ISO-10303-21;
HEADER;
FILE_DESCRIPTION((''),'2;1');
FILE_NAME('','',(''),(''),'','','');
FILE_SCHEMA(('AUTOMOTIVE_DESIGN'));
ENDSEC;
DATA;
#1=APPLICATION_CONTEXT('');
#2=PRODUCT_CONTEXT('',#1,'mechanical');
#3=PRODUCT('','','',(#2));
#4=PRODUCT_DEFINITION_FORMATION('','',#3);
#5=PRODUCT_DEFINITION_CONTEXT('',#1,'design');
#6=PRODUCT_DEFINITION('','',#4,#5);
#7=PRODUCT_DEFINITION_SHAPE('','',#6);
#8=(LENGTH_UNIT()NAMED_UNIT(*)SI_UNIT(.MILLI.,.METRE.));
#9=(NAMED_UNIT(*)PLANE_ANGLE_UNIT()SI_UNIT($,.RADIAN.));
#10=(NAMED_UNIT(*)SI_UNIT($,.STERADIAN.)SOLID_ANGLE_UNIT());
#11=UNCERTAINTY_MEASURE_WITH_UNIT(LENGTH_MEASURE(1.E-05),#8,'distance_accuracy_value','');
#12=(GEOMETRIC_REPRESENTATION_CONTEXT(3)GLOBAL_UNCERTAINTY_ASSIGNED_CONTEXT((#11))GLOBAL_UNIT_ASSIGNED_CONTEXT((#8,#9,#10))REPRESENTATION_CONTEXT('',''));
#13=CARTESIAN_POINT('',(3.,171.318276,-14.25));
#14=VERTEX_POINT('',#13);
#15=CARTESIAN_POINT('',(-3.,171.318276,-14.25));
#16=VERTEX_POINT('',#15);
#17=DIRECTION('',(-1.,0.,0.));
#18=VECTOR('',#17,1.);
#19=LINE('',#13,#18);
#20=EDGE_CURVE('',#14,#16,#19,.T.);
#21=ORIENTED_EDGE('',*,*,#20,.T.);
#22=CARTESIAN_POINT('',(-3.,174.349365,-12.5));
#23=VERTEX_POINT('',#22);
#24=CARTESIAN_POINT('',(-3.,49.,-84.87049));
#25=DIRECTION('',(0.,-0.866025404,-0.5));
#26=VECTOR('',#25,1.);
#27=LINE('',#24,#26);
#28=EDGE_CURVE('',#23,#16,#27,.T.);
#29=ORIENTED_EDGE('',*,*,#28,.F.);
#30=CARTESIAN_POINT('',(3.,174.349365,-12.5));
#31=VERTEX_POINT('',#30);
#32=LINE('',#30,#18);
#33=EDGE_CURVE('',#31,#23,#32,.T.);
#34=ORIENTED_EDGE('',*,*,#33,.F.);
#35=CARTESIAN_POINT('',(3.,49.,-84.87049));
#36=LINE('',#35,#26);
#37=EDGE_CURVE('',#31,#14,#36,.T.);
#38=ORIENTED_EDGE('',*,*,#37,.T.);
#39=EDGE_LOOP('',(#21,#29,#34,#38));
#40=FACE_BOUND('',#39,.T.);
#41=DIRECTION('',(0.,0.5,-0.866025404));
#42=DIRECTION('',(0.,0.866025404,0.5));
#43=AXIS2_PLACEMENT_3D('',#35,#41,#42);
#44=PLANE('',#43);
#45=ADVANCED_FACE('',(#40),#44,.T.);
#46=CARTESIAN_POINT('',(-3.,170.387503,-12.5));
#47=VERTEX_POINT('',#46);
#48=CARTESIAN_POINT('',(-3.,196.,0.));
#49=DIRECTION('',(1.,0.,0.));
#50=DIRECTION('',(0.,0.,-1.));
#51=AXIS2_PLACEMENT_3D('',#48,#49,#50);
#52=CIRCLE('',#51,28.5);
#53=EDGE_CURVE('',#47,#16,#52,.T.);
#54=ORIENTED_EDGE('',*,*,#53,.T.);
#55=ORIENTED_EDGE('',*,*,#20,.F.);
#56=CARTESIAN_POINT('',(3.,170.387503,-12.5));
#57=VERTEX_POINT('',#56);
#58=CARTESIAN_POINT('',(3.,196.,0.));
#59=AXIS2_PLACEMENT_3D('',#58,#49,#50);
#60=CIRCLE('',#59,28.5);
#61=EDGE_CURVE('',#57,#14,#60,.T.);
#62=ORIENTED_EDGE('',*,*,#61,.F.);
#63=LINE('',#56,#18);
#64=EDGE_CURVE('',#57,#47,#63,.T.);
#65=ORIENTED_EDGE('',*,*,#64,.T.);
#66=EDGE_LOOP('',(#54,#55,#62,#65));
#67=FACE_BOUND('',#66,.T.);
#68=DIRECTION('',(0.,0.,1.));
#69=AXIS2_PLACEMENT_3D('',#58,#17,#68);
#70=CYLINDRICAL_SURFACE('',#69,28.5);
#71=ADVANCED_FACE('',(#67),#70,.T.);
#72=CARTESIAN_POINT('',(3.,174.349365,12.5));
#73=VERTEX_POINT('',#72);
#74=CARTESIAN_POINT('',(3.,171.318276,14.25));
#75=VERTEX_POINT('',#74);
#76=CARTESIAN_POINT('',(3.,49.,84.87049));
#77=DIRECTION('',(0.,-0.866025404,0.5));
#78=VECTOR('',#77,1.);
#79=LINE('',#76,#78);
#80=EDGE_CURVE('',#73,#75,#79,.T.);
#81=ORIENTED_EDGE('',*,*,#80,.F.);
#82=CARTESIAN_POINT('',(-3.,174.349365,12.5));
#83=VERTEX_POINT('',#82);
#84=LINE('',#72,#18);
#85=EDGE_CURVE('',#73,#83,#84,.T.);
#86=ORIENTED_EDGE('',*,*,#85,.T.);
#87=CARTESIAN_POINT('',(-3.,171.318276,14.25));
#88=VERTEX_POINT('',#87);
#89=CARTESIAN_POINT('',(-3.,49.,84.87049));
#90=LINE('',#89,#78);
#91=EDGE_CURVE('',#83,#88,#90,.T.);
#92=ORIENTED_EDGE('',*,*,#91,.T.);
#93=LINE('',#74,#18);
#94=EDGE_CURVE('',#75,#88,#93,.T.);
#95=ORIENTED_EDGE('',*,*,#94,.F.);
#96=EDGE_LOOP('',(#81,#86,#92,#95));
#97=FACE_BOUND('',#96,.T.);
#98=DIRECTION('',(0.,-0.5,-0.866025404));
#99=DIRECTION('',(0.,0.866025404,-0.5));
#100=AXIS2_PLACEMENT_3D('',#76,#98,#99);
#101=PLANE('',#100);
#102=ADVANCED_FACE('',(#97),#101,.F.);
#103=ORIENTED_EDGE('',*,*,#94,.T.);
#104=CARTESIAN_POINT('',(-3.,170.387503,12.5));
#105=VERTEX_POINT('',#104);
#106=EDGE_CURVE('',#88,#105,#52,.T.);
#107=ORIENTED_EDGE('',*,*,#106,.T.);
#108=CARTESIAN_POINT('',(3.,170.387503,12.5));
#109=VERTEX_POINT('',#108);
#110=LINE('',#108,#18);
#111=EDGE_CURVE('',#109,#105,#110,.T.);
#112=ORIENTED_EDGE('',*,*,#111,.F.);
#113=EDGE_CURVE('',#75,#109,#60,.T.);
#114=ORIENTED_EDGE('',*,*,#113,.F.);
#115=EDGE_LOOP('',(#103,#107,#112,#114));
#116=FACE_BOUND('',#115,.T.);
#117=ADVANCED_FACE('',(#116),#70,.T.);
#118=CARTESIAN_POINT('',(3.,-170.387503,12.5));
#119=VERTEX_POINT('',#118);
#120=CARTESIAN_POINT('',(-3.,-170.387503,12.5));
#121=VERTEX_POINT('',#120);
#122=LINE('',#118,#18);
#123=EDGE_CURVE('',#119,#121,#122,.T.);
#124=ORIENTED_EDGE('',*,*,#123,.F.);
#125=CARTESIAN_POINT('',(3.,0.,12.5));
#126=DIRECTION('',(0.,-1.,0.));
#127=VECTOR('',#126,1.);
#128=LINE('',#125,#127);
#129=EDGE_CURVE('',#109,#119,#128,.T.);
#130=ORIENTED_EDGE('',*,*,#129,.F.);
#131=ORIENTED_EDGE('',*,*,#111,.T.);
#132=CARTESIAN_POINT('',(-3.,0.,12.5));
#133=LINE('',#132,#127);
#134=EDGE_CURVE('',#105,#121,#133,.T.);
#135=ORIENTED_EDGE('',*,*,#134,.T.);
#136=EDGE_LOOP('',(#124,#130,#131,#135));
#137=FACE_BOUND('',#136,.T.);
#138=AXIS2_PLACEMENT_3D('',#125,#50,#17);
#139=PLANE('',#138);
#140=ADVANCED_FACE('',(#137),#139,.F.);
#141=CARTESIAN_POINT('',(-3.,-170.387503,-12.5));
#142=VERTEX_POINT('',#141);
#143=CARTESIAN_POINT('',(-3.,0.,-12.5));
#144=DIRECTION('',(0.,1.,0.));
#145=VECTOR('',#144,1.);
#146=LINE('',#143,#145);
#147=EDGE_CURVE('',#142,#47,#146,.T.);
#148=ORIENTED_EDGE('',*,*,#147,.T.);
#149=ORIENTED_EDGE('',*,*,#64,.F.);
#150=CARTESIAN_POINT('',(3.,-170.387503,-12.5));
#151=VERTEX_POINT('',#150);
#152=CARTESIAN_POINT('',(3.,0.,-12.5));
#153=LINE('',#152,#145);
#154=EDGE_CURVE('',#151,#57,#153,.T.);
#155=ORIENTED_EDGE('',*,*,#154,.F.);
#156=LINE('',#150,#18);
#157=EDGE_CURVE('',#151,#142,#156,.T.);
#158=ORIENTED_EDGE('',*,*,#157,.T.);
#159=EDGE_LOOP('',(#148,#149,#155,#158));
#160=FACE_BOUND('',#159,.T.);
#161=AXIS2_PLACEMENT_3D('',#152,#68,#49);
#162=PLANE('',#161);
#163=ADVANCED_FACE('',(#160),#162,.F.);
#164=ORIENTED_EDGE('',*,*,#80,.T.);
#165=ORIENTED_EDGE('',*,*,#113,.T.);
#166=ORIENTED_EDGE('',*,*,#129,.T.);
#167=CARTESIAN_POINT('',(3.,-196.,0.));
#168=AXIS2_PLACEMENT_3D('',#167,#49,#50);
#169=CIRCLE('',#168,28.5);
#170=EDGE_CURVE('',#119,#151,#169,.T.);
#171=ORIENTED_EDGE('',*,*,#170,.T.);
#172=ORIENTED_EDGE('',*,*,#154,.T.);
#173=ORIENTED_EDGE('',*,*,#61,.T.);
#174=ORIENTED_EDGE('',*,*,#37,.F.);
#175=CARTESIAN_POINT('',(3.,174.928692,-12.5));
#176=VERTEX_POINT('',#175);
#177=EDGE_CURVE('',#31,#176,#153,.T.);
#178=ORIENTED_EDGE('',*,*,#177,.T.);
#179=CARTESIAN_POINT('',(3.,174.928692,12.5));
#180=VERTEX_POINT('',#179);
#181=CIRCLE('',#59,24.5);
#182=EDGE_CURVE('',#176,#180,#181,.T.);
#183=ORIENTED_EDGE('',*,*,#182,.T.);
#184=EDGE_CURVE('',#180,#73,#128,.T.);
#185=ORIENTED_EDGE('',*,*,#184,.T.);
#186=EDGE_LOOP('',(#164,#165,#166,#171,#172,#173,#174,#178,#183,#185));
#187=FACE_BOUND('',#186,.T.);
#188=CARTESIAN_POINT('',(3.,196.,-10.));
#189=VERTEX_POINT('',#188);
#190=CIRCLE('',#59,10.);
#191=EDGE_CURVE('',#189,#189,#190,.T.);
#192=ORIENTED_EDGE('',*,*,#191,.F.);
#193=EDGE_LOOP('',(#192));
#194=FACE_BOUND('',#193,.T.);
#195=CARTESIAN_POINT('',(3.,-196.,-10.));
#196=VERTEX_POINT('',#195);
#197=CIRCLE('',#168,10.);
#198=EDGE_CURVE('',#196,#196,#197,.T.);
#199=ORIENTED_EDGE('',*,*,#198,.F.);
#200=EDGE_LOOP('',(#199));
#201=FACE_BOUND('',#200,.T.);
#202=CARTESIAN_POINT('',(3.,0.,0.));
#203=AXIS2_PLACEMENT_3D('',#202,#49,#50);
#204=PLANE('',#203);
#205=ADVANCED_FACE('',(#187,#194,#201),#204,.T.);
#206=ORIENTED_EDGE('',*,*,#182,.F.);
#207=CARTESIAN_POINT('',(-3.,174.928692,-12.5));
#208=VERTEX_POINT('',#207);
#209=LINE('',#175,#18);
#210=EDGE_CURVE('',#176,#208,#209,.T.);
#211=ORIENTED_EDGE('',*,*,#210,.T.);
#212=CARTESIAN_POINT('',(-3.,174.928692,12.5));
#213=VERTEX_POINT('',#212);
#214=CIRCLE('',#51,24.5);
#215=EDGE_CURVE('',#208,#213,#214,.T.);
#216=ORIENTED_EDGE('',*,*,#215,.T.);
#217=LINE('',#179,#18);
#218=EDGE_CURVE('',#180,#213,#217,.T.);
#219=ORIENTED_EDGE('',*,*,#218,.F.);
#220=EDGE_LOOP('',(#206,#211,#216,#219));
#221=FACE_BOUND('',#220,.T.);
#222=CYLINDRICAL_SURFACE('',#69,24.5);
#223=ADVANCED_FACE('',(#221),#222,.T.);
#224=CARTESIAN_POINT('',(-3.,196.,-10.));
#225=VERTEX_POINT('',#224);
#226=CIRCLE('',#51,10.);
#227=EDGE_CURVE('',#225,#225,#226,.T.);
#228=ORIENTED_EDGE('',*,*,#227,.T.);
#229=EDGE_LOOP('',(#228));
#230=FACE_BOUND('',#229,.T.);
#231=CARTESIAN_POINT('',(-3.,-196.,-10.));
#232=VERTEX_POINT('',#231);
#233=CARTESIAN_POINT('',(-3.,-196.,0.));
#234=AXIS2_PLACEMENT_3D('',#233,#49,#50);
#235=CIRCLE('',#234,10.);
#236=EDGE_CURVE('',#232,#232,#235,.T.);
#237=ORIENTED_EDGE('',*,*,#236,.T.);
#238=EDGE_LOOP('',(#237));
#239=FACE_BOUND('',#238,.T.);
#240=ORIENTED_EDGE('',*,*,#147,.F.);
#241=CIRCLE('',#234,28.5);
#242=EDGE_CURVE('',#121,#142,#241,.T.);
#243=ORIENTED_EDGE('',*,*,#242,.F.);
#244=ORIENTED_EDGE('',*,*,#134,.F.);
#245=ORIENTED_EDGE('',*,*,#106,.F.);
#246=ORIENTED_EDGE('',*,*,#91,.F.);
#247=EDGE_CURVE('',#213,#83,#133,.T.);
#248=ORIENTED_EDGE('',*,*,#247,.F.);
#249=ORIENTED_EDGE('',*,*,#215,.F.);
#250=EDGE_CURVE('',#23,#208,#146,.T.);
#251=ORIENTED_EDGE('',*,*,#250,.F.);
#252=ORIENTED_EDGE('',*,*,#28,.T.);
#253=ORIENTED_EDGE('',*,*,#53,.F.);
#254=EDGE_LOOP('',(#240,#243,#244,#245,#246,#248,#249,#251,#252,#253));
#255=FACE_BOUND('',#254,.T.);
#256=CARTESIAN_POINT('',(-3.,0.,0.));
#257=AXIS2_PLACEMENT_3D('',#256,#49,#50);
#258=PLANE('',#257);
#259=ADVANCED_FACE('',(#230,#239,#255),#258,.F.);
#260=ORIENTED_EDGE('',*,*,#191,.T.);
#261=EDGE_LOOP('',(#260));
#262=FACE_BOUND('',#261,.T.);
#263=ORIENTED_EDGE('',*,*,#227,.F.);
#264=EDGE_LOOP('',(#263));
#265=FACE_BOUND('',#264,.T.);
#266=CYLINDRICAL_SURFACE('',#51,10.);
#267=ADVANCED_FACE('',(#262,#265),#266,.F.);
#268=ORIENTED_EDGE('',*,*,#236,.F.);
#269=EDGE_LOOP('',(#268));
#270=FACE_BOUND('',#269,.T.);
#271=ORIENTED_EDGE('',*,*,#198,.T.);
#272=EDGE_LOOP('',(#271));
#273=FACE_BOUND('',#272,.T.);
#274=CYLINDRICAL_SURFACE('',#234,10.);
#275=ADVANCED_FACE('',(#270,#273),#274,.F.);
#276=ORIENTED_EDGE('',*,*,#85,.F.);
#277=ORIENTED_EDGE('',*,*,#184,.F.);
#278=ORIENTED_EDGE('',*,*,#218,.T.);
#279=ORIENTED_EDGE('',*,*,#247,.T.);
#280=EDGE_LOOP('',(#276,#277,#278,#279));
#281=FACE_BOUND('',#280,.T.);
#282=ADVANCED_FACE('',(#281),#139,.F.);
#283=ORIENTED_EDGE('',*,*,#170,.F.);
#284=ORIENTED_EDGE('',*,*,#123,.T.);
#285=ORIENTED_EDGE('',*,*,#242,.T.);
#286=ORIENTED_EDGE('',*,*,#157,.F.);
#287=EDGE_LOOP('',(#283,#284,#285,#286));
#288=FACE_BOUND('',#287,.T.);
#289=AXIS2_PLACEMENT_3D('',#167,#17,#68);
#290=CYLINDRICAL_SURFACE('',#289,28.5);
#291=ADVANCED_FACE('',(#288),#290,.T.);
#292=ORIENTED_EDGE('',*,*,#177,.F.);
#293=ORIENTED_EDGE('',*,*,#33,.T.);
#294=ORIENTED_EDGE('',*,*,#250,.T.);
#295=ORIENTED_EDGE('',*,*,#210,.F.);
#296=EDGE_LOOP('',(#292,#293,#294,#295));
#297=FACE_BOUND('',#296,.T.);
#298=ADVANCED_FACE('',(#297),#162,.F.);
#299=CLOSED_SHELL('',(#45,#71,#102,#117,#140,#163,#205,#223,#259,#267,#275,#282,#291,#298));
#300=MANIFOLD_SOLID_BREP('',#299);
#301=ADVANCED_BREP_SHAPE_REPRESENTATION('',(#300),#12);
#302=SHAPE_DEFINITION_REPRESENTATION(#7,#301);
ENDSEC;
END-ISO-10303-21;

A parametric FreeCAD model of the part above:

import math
import FreeCAD as App
import Part
import Sketcher

V = App.Vector
Q = App.Units.Quantity

doc = App.newDocument("Part")
body = doc.addObject("PartDesign::Body", "Body")

# Sketch on YZ plane
sketch1 = body.newObject("Sketcher::SketchObject", "Sketch")
sketch1.AttachmentSupport = (doc.getObject("YZ_Plane"), [""])
sketch1.MapMode = "FlatFace"
sketch1.addGeometry([
    Part.ArcOfCircle(Part.Circle(V(-196, 0, 0), V(0, 0, 1), 28.5), math.radians(26.014366), math.radians(333.985634)),  # 0
    Part.LineSegment(V(-170.387503, -12.5, 0), V(170.387503, -12.5, 0)),  # 1
    Part.ArcOfCircle(Part.Circle(V(196, 0, 0), V(0, 0, 1), 28.5), math.radians(-153.985634), math.radians(-150)),  # 2
    Part.LineSegment(V(171.318276, -14.25, 0), V(174.349365, -12.5, 0)),  # 3
    Part.LineSegment(V(174.349365, -12.5, 0), V(174.928692, -12.5, 0)),  # 4
    Part.ArcOfCircle(Part.Circle(V(196, 0, 0), V(0, 0, 1), 24.5), math.radians(-149.322576), math.radians(149.322576)),  # 5
    Part.LineSegment(V(174.928692, 12.5, 0), V(174.349365, 12.5, 0)),  # 6
    Part.LineSegment(V(174.349365, 12.5, 0), V(171.318276, 14.25, 0)),  # 7
    Part.ArcOfCircle(Part.Circle(V(196, 0, 0), V(0, 0, 1), 28.5), math.radians(150), math.radians(153.985634)),  # 8
    Part.LineSegment(V(170.387503, 12.5, 0), V(-170.387503, 12.5, 0)),  # 9
], False)
sketch1.addConstraint([
    Sketcher.Constraint("Coincident", 0, 2, 1, 1),
    Sketcher.Constraint("Coincident", 1, 2, 2, 1),
    Sketcher.Constraint("Coincident", 2, 2, 3, 1),
    Sketcher.Constraint("Coincident", 3, 2, 4, 1),
    Sketcher.Constraint("Coincident", 4, 2, 5, 1),
    Sketcher.Constraint("Coincident", 5, 2, 6, 1),
    Sketcher.Constraint("Coincident", 6, 2, 7, 1),
    Sketcher.Constraint("Coincident", 7, 2, 8, 1),
    Sketcher.Constraint("Coincident", 8, 2, 9, 1),
    Sketcher.Constraint("Coincident", 9, 2, 0, 1),
    Sketcher.Constraint("Horizontal", 1),
    Sketcher.Constraint("Horizontal", 4),
    Sketcher.Constraint("Horizontal", 6),
    Sketcher.Constraint("Horizontal", 9),
    Sketcher.Constraint("Coincident", 5, 3, 2, 3),
    Sketcher.Constraint("Coincident", 8, 3, 2, 3),
    Sketcher.Constraint("Equal", 0, 2),
    Sketcher.Constraint("Equal", 2, 8),
    Sketcher.Constraint("Symmetric", 0, 3, 2, 3, -1, 1),
    Sketcher.Constraint("Symmetric", 4, 2, 5, 2, -1),
    Sketcher.Constraint("Horizontal", 1, 2, 3, 2),
    Sketcher.Constraint("Horizontal", 6, 2, 8, 2),
    Sketcher.Constraint("Vertical", 3, 2, 6, 2),
    Sketcher.Constraint("Vertical", 2, 2, 7, 2),
    Sketcher.Constraint("Radius", 0, 28.5),
    Sketcher.Constraint("Radius", 5, 24.5),
    Sketcher.Constraint("Angle", 3, Q("30 deg")),
    Sketcher.Constraint("DistanceX", 0, 3, -1, 1, 196.0),
    Sketcher.Constraint("DistanceY", 4, 2, 5, 2, 25.0),
    Sketcher.Constraint("Distance", 3, 3.5),
])
pad1 = body.newObject("PartDesign::Pad", "Pad")
pad1.Profile = sketch1
pad1.Length = 6
pad1.Midplane = True

# Sketch on YZ plane
sketch2 = body.newObject("Sketcher::SketchObject", "Sketch001")
sketch2.AttachmentSupport = (doc.getObject("YZ_Plane"), [""])
sketch2.MapMode = "FlatFace"
sketch2.AttachmentOffset = App.Placement(V(0, 0, 3), App.Rotation())
sketch2.addGeometry([
    Part.Circle(V(-196, 0, 0), V(0, 0, 1), 10),
    Part.Circle(V(196, 0, 0), V(0, 0, 1), 10),
], False)
sketch2.addConstraint([
    Sketcher.Constraint("Equal", 0, 1),
    Sketcher.Constraint("Symmetric", 0, 3, 1, 3, -1, 1),
    Sketcher.Constraint("PointOnObject", 0, 3, -1),
    Sketcher.Constraint("Diameter", 0, 20.0),
    Sketcher.Constraint("DistanceX", 0, 3, -1, 1, 196.0),
])
pocket1 = body.newObject("PartDesign::Pocket", "Pocket")
pocket1.Profile = sketch2
pocket1.Type = "ThroughAll"

doc.recompute()
